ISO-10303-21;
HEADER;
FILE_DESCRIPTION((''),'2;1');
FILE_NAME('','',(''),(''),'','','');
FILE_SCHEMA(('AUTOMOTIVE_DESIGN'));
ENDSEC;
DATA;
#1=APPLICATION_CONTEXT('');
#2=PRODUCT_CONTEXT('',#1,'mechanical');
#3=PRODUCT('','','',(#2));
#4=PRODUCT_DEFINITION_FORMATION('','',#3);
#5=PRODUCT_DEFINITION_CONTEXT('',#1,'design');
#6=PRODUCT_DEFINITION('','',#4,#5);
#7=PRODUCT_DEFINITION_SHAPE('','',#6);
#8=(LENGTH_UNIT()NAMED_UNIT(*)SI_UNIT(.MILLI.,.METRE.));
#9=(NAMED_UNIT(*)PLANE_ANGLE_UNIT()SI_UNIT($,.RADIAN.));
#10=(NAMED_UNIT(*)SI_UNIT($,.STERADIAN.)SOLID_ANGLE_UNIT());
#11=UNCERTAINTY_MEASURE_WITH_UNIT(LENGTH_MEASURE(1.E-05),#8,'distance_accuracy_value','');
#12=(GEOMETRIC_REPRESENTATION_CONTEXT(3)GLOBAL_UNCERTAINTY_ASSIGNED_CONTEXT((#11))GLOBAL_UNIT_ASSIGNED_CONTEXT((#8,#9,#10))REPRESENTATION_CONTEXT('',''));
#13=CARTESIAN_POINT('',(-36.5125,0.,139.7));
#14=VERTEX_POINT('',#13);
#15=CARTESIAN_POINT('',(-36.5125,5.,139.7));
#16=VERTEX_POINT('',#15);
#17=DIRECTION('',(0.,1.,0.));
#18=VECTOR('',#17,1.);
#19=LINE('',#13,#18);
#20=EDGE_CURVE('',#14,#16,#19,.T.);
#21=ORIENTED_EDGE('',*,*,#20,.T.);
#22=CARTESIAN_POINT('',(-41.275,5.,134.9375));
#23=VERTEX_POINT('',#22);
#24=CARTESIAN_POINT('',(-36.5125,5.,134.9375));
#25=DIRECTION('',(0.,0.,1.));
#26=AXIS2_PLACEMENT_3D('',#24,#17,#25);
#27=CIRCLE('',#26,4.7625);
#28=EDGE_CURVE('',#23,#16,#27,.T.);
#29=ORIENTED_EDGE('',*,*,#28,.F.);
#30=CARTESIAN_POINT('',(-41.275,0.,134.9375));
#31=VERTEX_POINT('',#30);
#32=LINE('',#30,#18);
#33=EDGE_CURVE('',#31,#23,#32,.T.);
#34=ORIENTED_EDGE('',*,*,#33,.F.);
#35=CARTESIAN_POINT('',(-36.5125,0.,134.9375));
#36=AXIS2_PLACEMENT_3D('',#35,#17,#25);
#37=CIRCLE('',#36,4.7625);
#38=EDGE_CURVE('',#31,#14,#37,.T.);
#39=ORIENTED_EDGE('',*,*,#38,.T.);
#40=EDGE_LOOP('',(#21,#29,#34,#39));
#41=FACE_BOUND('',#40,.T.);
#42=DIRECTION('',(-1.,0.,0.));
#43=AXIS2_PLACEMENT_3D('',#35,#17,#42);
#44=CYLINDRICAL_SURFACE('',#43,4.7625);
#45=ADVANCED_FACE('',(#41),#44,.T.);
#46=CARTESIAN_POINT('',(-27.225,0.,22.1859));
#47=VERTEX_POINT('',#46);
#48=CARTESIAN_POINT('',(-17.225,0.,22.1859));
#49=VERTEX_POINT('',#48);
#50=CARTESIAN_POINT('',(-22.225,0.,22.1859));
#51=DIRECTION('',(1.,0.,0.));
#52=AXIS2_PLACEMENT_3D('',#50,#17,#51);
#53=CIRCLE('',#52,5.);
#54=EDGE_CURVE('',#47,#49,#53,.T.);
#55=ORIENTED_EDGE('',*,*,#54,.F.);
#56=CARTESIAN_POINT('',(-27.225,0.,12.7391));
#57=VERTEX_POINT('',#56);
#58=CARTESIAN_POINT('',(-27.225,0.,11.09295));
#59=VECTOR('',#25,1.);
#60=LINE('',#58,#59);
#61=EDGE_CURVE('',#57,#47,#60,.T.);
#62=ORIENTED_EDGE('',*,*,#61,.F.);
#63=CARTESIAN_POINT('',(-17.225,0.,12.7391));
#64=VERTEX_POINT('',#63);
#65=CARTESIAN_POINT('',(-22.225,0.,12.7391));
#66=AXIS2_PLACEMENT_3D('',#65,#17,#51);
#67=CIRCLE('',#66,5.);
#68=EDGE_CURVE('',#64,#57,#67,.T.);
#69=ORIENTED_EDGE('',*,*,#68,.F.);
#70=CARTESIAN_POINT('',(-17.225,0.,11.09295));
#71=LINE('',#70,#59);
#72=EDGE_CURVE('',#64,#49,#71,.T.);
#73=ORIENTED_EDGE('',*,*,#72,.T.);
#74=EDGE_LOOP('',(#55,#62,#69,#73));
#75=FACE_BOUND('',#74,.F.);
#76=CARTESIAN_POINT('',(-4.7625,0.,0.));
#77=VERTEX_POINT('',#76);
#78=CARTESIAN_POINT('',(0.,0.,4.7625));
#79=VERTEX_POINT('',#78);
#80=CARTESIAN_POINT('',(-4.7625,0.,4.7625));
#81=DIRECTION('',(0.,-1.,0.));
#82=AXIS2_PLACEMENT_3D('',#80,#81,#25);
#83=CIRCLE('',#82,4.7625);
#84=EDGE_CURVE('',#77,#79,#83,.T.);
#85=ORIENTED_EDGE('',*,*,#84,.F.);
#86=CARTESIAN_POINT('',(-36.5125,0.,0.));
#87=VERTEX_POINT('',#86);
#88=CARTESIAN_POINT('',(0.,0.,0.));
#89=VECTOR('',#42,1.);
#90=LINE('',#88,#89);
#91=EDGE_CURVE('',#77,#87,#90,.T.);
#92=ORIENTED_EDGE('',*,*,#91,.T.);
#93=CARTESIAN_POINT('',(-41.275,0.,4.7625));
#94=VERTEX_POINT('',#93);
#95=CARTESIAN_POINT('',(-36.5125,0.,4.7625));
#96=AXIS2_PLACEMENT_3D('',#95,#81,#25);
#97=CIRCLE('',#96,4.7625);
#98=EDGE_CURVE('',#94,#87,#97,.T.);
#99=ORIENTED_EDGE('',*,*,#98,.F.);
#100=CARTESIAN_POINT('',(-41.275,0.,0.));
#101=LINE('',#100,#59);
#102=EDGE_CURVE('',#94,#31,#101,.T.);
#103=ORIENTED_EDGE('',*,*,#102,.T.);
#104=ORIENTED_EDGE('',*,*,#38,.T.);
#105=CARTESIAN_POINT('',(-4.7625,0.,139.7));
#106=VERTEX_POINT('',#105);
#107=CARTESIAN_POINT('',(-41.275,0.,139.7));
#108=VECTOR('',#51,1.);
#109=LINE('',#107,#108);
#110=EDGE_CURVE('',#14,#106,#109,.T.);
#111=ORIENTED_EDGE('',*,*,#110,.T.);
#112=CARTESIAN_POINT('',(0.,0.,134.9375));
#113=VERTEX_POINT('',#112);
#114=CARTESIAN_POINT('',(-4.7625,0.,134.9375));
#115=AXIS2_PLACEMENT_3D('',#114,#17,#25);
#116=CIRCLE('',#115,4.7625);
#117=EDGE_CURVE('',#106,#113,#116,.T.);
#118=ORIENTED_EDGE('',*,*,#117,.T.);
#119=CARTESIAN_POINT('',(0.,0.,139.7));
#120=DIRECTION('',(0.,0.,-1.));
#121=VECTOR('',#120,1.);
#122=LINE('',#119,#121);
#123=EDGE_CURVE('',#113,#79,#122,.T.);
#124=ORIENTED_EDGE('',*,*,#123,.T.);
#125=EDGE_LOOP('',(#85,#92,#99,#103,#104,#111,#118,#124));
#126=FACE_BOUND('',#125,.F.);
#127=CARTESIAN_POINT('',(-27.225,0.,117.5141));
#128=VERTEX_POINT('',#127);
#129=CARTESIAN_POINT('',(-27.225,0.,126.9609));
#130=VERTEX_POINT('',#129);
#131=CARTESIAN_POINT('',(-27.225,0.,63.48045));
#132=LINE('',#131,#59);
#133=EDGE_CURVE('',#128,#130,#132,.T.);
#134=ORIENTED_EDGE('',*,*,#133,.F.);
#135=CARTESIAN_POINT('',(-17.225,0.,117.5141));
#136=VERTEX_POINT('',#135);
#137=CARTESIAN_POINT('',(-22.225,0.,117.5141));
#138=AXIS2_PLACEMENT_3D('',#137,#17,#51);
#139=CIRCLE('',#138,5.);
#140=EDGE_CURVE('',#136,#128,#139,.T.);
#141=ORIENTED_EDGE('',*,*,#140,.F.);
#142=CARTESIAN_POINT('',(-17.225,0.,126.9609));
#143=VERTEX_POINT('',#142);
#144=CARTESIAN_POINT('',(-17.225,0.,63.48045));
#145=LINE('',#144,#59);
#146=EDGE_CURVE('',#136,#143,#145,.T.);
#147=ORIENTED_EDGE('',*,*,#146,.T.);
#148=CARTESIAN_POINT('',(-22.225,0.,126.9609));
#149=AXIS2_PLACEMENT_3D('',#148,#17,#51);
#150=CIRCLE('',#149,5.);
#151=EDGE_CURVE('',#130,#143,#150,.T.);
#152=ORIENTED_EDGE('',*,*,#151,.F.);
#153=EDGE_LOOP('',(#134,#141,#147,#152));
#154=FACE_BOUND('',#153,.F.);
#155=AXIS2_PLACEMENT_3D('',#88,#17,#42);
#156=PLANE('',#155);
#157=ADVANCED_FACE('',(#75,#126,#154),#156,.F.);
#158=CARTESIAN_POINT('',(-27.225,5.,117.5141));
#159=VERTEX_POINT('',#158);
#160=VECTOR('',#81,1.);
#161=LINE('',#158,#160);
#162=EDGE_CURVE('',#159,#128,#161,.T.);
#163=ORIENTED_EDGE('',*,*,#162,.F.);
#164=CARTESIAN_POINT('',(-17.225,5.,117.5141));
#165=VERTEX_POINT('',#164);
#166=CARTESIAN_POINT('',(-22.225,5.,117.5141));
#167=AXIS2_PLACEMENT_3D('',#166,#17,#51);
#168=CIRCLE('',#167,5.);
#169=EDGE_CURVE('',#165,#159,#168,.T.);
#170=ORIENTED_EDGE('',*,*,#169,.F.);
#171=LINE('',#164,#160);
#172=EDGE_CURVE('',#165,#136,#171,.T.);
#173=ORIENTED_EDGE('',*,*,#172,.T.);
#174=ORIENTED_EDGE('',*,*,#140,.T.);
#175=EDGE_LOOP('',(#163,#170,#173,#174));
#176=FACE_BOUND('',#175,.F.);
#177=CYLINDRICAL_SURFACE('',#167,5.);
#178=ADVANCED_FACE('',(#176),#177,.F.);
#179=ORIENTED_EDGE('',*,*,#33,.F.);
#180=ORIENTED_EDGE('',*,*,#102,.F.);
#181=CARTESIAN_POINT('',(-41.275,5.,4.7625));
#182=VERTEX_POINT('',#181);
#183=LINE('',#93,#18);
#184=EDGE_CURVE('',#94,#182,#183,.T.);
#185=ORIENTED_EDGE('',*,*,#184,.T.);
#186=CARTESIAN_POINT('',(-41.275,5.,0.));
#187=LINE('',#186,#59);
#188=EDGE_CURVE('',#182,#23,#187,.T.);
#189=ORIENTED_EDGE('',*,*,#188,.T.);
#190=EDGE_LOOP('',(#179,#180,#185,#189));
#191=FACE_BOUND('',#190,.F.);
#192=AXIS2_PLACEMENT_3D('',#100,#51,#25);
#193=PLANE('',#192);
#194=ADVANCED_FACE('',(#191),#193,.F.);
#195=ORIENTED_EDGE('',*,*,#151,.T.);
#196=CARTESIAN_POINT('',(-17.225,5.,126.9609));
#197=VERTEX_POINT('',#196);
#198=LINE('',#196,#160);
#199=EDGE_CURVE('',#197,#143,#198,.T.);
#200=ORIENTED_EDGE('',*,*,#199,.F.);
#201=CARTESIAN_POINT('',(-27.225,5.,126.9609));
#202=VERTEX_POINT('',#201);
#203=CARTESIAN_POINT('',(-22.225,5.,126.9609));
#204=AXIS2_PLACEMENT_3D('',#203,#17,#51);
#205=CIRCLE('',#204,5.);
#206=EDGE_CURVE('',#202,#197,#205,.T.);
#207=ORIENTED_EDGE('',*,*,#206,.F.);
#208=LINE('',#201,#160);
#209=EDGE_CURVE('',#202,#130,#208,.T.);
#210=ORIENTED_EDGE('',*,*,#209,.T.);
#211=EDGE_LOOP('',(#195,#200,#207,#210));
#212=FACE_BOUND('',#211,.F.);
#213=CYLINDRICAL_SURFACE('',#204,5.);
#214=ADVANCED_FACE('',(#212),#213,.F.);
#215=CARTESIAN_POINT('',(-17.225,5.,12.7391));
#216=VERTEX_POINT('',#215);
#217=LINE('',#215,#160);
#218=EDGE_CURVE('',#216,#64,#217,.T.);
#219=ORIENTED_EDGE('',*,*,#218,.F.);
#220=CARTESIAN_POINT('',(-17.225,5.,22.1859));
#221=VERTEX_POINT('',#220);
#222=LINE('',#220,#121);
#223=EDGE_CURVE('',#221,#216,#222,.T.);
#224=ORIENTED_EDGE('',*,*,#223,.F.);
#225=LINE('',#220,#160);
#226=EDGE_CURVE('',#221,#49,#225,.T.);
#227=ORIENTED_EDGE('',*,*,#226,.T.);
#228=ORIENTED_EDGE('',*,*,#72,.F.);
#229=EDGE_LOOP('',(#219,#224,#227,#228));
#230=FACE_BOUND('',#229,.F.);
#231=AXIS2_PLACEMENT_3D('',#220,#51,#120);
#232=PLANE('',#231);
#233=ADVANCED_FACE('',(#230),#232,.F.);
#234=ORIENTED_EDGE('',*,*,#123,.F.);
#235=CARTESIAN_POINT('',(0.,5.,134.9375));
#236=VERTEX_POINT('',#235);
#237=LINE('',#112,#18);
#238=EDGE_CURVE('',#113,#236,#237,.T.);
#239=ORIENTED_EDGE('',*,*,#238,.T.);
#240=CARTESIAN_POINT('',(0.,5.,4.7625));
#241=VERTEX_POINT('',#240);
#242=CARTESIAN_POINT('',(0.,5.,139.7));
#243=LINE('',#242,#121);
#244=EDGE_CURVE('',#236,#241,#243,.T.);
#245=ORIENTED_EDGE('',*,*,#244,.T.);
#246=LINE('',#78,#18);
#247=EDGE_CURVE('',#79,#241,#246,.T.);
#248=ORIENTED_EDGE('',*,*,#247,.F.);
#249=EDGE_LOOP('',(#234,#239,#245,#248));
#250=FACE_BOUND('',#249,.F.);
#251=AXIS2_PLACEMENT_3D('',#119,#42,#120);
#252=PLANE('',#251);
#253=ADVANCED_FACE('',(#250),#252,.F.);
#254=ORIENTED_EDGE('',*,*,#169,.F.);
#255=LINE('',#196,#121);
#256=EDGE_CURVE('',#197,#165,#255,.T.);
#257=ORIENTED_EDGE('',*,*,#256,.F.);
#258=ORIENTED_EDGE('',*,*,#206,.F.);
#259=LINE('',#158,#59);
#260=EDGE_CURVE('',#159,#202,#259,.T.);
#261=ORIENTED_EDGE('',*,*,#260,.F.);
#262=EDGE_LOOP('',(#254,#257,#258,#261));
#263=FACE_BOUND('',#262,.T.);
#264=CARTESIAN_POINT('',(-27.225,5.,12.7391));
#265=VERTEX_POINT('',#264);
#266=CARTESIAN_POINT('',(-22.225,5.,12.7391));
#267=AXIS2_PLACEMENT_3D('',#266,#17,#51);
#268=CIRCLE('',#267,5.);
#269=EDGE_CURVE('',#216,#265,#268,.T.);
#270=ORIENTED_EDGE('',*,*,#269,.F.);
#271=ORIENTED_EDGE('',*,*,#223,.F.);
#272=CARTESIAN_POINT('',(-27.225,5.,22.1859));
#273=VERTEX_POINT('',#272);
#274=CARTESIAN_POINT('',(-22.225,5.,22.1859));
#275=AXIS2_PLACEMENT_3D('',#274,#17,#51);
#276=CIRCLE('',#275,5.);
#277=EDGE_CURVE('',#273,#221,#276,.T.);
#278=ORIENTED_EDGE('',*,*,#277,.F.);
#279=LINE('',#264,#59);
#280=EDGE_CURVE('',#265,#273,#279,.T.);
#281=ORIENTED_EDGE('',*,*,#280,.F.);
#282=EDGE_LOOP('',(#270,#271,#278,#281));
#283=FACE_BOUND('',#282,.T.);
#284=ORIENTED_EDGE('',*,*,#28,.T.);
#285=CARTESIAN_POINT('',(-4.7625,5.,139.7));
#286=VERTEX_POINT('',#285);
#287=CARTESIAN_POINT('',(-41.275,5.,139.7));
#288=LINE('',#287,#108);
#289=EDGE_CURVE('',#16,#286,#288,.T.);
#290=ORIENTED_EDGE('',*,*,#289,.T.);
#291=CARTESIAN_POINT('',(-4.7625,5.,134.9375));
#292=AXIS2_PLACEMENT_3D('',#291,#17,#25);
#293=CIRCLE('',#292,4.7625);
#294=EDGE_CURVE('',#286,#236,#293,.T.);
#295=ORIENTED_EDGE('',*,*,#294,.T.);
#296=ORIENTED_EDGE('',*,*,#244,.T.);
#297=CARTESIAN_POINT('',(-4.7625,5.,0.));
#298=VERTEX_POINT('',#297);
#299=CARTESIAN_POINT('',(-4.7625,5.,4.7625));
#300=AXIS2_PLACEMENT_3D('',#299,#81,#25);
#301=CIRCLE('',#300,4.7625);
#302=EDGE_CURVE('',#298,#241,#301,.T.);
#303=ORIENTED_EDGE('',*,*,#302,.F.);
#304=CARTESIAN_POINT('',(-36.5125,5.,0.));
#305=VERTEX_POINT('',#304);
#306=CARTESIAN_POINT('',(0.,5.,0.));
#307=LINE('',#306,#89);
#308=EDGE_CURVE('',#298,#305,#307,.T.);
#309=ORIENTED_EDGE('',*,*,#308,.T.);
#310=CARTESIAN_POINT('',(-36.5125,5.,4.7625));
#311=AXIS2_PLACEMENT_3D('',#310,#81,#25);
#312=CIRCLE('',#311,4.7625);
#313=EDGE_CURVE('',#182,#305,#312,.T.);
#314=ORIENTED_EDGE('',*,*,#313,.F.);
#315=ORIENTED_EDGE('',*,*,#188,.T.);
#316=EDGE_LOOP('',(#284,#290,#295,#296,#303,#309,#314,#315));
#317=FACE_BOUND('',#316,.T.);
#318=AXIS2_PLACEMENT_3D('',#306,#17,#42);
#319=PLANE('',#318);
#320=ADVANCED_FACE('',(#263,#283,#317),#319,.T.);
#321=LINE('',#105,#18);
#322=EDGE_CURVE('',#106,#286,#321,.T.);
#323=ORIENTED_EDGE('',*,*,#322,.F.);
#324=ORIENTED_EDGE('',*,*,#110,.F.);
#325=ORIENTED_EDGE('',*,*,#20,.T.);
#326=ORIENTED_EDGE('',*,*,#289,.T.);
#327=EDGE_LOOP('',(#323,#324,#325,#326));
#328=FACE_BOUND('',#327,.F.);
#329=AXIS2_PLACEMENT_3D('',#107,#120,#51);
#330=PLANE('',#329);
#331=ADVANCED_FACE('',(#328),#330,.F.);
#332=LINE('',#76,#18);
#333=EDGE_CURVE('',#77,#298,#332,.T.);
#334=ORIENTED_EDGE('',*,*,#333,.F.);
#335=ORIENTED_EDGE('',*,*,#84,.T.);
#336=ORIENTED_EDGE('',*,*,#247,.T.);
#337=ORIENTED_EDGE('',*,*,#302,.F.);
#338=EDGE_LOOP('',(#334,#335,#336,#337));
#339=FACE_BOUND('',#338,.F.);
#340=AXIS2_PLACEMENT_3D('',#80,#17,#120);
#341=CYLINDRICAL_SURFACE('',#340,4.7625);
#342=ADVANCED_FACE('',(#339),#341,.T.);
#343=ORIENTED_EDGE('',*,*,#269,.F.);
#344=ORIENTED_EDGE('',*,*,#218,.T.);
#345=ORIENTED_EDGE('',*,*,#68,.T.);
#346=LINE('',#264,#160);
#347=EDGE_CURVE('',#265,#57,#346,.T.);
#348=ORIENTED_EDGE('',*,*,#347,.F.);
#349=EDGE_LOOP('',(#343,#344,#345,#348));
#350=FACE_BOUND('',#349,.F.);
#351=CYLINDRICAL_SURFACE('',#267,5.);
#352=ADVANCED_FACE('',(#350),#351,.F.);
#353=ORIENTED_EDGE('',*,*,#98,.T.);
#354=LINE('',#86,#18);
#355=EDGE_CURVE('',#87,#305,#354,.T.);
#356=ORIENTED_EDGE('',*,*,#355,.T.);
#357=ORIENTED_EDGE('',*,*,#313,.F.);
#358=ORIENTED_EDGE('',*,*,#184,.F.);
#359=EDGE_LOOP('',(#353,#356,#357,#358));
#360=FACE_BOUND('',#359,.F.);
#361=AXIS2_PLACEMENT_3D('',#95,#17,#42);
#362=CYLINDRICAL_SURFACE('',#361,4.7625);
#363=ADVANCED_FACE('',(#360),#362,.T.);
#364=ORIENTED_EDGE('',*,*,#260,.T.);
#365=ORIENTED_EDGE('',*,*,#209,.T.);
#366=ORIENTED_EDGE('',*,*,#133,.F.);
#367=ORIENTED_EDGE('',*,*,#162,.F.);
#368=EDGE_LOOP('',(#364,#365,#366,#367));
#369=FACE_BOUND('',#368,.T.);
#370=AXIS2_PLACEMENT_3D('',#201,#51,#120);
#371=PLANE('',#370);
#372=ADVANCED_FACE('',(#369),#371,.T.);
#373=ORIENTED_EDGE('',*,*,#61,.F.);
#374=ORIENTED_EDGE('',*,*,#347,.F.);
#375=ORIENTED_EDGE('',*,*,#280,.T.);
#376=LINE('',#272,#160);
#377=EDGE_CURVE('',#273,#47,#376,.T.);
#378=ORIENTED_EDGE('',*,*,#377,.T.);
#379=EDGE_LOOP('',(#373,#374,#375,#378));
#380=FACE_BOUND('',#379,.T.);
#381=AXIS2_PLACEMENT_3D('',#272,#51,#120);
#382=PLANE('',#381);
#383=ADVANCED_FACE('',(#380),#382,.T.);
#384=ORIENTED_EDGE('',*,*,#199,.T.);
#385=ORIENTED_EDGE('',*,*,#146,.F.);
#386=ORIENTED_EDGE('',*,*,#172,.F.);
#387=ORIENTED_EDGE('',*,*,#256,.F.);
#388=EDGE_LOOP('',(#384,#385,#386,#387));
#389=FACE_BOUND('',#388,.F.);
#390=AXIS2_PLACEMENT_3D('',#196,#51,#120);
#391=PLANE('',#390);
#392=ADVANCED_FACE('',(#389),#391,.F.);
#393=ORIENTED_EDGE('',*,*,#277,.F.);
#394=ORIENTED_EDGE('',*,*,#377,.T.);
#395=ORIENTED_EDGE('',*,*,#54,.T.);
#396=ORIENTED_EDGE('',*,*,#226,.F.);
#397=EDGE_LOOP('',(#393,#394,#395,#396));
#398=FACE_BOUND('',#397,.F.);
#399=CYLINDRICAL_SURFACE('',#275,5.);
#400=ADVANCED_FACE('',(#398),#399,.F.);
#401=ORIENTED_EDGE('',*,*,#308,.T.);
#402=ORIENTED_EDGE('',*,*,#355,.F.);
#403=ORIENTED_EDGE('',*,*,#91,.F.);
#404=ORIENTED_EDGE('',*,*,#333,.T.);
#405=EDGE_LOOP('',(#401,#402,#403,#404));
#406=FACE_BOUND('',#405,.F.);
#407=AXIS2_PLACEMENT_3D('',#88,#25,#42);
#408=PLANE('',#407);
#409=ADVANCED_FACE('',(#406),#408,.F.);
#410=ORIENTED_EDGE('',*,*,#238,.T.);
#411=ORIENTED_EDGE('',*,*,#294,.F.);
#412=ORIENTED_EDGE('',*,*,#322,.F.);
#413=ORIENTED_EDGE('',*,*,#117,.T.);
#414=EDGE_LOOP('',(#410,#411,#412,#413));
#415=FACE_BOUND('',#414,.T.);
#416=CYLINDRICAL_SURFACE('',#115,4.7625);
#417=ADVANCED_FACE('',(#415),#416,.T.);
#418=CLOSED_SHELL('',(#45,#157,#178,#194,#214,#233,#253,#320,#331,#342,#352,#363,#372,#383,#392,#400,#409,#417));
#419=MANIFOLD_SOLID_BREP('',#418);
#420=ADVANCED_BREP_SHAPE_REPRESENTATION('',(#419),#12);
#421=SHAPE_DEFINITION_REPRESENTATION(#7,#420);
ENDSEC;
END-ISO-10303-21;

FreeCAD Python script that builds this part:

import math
import FreeCAD as App
import Part
import Sketcher

V = App.Vector
Q = App.Units.Quantity


def edges_at(feature, points):
    """Names of the edges that pass closest to the given points."""
    edges = feature.Shape.Edges
    near = lambda p: min(range(len(edges)), key=lambda i: edges[i].distToShape(Part.Vertex(*p))[0])
    return sorted({f"Edge{near(p) + 1}" for p in points})


def add_polygon(sketch, points):
    """Adds a closed chain of lines whose ends are joined by coincident constraints."""
    first, n = sketch.GeometryCount, len(points)
    for a, b in zip(points, points[1:] + points[:1]):
        sketch.addGeometry(Part.LineSegment(App.Vector(*a, 0), App.Vector(*b, 0)), False)
    for i in range(n):
        sketch.addConstraint(Sketcher.Constraint("Coincident", first + i, 2, first + (i + 1) % n, 1))

doc = App.newDocument("Part")
body = doc.addObject("PartDesign::Body", "Body")

sketch1 = doc.addObject("Sketcher::SketchObject", "Sketch")
body.addObject(sketch1)
sketch1.AttachmentSupport = (doc.XZ_Plane, [""])
sketch1.MapMode = "FlatFace"
add_polygon(sketch1, [(-41.275, 0), (-41.275, 139.7), (0, 139.7), (0, 0)])
sketch1.addConstraint([
    Sketcher.Constraint("Vertical", 0),
    Sketcher.Constraint("Horizontal", 1),
    Sketcher.Constraint("Vertical", 2),
    Sketcher.Constraint("Horizontal", 3),
    Sketcher.Constraint("Coincident", 2, 2, -1, 1),
    Sketcher.Constraint("DistanceY", 0, 1, 0, 2, Q("5.5 in")),
    Sketcher.Constraint("DistanceX", 1, 1, 1, 2, Q("1.625 in")),
])
pad1 = doc.addObject("PartDesign::Pad", "Pad")
body.addObject(pad1)
pad1.Profile = sketch1
pad1.Length = 5
pad1.Reversed = True

sketch2 = doc.addObject("Sketcher::SketchObject", "Sketch001")
body.addObject(sketch2)
sketch2.AttachmentSupport = (doc.XZ_Plane, [""])
sketch2.MapMode = "FlatFace"
sketch2.AttachmentOffset = App.Placement(V(0, 0, -5), App.Rotation())
sketch2.addGeometry([
    Part.LineSegment(V(-17.225, 126.9609, 0), V(-17.225, 117.5141, 0)),
    Part.ArcOfCircle(Part.Circle(V(-22.225, 117.5141, 0), V(0, 0, 1), 5), math.radians(180), math.radians(360)),
    Part.LineSegment(V(-27.225, 117.5141, 0), V(-27.225, 126.9609, 0)),
    Part.ArcOfCircle(Part.Circle(V(-22.225, 126.9609, 0), V(0, 0, 1), 5), math.radians(0), math.radians(180)),
    Part.LineSegment(V(-17.225, 22.1859, 0), V(-17.225, 12.7391, 0)),
    Part.ArcOfCircle(Part.Circle(V(-22.225, 12.7391, 0), V(0, 0, 1), 5), math.radians(180), math.radians(360)),
    Part.LineSegment(V(-27.225, 12.7391, 0), V(-27.225, 22.1859, 0)),
    Part.ArcOfCircle(Part.Circle(V(-22.225, 22.1859, 0), V(0, 0, 1), 5), math.radians(0), math.radians(180)),
], False)
sketch2.addConstraint([
    Sketcher.Constraint("Tangent", 0, 2, 1, 2),
    Sketcher.Constraint("Tangent", 1, 1, 2, 1),
    Sketcher.Constraint("Tangent", 2, 2, 3, 2),
    Sketcher.Constraint("Tangent", 3, 1, 0, 1),
    Sketcher.Constraint("Tangent", 4, 2, 5, 2),
    Sketcher.Constraint("Tangent", 5, 1, 6, 1),
    Sketcher.Constraint("Tangent", 6, 2, 7, 2),
    Sketcher.Constraint("Tangent", 7, 1, 4, 1),
    Sketcher.Constraint("Vertical", 0),
    Sketcher.Constraint("Vertical", 2),
    Sketcher.Constraint("Vertical", 4),
    Sketcher.Constraint("Vertical", 6),
    Sketcher.Constraint("Equal", 3, 5),
    Sketcher.Constraint("Vertical", 3, 3, 5, 3),
    Sketcher.Constraint("Equal", 2, 4),
    Sketcher.Constraint("Radius", 1, 5.0),
    Sketcher.Constraint("DistanceX", 1, 3, -1, 1, Q("0.875 in")),
    Sketcher.Constraint("DistanceY", 5, 3, 1, 3, Q("4.125 in")),
    Sketcher.Constraint("DistanceY", 0, 2, 0, 1, 9.4468),
    Sketcher.Constraint("DistanceY", -1, 1, 1, 3, 117.514),
])
pocket1 = doc.addObject("PartDesign::Pocket", "Pocket")
body.addObject(pocket1)
pocket1.Profile = sketch2
pocket1.Type = "UpToFirst"
pocket1.Reversed = True
doc.recompute()

fillet = doc.addObject("PartDesign::Fillet", "Fillet")
body.addObject(fillet)
fillet.Base = (pocket1, edges_at(pocket1, [
    (0, 2.5, 139.7),
    (-41.275, 2.5, 139.7),
    (0, 2.5, 0),
    (-41.275, 2.5, 0),
]))
fillet.Radius = Q("0.1875 in")

doc.recompute()
